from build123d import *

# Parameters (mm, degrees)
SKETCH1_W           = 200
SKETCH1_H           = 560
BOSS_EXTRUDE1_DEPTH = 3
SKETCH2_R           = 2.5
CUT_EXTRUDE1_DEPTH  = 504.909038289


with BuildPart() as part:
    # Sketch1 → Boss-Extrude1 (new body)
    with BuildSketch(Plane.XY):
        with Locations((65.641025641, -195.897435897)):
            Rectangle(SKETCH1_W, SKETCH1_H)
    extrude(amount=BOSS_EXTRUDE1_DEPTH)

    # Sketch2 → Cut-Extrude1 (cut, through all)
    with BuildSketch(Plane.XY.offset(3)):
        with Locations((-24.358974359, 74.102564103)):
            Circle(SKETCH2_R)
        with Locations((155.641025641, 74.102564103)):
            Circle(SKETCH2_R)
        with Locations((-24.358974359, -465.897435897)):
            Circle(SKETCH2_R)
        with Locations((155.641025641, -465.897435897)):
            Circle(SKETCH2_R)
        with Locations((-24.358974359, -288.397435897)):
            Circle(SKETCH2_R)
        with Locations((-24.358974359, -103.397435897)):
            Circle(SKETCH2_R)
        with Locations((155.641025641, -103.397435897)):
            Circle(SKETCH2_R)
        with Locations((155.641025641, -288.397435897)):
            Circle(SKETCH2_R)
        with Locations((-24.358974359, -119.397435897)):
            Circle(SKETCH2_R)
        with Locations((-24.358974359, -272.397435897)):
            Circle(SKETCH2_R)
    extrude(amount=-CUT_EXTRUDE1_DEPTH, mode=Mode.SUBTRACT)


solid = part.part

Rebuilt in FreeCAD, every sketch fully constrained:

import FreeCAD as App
import Part
import Sketcher

V = App.Vector
Q = App.Units.Quantity


def add_polygon(sketch, points):
    """Adds a closed chain of lines whose ends are joined by coincident constraints."""
    first, n = sketch.GeometryCount, len(points)
    for a, b in zip(points, points[1:] + points[:1]):
        sketch.addGeometry(Part.LineSegment(App.Vector(*a, 0), App.Vector(*b, 0)), False)
    for i in range(n):
        sketch.addConstraint(Sketcher.Constraint("Coincident", first + i, 2, first + (i + 1) % n, 1))

doc = App.newDocument("Part")
params = doc.addObject("Spreadsheet::Sheet", "Params")
for row, (alias, value) in enumerate([
    ("sketch1_width", "200 mm"),
    ("sketch1_height", "560 mm"),
    ("pad1_length", "3 mm"),
    ("sketch2_diameter", "5 mm"),
], start=1):
    params.set(f"A{row}", alias)
    params.set(f"B{row}", "=" + value)
    params.setAlias(f"B{row}", alias)

body = doc.addObject("PartDesign::Body", "Body")

sketch1 = body.newObject("Sketcher::SketchObject", "Sketch")
sketch1.AttachmentSupport = (doc.getObject("XY_Plane"), [""])
sketch1.MapMode = "FlatFace"
add_polygon(sketch1, [(-34.358974, 84.102564), (-34.358974, -475.897436), (165.641026, -475.897436), (165.641026, 84.102564)])
sketch1.addConstraint([
    Sketcher.Constraint("Vertical", 0),
    Sketcher.Constraint("Horizontal", 1),
    Sketcher.Constraint("Vertical", 2),
    Sketcher.Constraint("Horizontal", 3),
    Sketcher.Constraint("DistanceX", 1, 1, 1, 2, Q("200 mm")),
    Sketcher.Constraint("DistanceY", 0, 2, 0, 1, Q("560 mm")),
    Sketcher.Constraint("DistanceX", 0, 2, -1, 1, Q("34.358974 mm")),
    Sketcher.Constraint("DistanceY", 0, 2, -1, 1, Q("475.897436 mm")),
])
sketch1.setExpression("Constraints[8]", "Params.sketch1_width")
sketch1.setExpression("Constraints[9]", "Params.sketch1_height")
pad1 = body.newObject("PartDesign::Pad", "Pad")
pad1.Profile = sketch1
pad1.setExpression("Length", "Params.pad1_length")

sketch2 = body.newObject("Sketcher::SketchObject", "Sketch001")
sketch2.AttachmentSupport = (doc.getObject("XY_Plane"), [""])
sketch2.MapMode = "FlatFace"
sketch2.AttachmentOffset = App.Placement(V(0, 0, 3), App.Rotation())
sketch2.addGeometry([
    Part.Circle(V(-24.358974, 74.102564, 0), V(0, 0, 1), 2.5),
    Part.Circle(V(155.641026, 74.102564, 0), V(0, 0, 1), 2.5),
    Part.Circle(V(-24.358974, -465.897436, 0), V(0, 0, 1), 2.5),
    Part.Circle(V(155.641026, -465.897436, 0), V(0, 0, 1), 2.5),
    Part.Circle(V(-24.358974, -288.397436, 0), V(0, 0, 1), 2.5),
    Part.Circle(V(-24.358974, -103.397436, 0), V(0, 0, 1), 2.5),
    Part.Circle(V(155.641026, -103.397436, 0), V(0, 0, 1), 2.5),
    Part.Circle(V(155.641026, -288.397436, 0), V(0, 0, 1), 2.5),
    Part.Circle(V(-24.358974, -119.397436, 0), V(0, 0, 1), 2.5),
    Part.Circle(V(-24.358974, -272.397436, 0), V(0, 0, 1), 2.5),
], False)
sketch2.addConstraint([
    Sketcher.Constraint("Equal", 0, 1),
    Sketcher.Constraint("Equal", 1, 2),
    Sketcher.Constraint("Equal", 2, 3),
    Sketcher.Constraint("Equal", 3, 4),
    Sketcher.Constraint("Equal", 4, 5),
    Sketcher.Constraint("Equal", 5, 6),
    Sketcher.Constraint("Equal", 6, 7),
    Sketcher.Constraint("Equal", 7, 8),
    Sketcher.Constraint("Equal", 8, 9),
    Sketcher.Constraint("Horizontal", 0, 3, 1, 3),
    Sketcher.Constraint("Horizontal", 2, 3, 3, 3),
    Sketcher.Constraint("Horizontal", 5, 3, 6, 3),
    Sketcher.Constraint("Horizontal", 4, 3, 7, 3),
    Sketcher.Constraint("Vertical", 0, 3, 2, 3),
    Sketcher.Constraint("Vertical", 1, 3, 3, 3),
    Sketcher.Constraint("Vertical", 2, 3, 4, 3),
    Sketcher.Constraint("Vertical", 4, 3, 5, 3),
    Sketcher.Constraint("Vertical", 3, 3, 6, 3),
    Sketcher.Constraint("Vertical", 6, 3, 7, 3),
    Sketcher.Constraint("Vertical", 5, 3, 8, 3),
    Sketcher.Constraint("Vertical", 8, 3, 9, 3),
    Sketcher.Constraint("Diameter", 0, Q("5 mm")),
    Sketcher.Constraint("DistanceX", 0, 3, 1, 3, Q("180 mm")),
    Sketcher.Constraint("DistanceY", 2, 3, 0, 3, Q("540 mm")),
    Sketcher.Constraint("DistanceY", 4, 3, 5, 3, Q("185 mm")),
    Sketcher.Constraint("DistanceY", 8, 3, 5, 3, Q("16 mm")),
    Sketcher.Constraint("DistanceY", 4, 3, 9, 3, Q("16 mm")),
    Sketcher.Constraint("DistanceY", 2, 3, 4, 3, Q("177.5 mm")),
    Sketcher.Constraint("DistanceX", 0, 3, -1, 1, Q("24.358974 mm")),
    Sketcher.Constraint("DistanceY", -1, 1, 0, 3, Q("74.102564 mm")),
])
sketch2.setExpression("Constraints[21]", "Params.sketch2_diameter")
pocket1 = body.newObject("PartDesign::Pocket", "Pocket")
pocket1.Profile = sketch2
pocket1.Type = "ThroughAll"

doc.recompute()
